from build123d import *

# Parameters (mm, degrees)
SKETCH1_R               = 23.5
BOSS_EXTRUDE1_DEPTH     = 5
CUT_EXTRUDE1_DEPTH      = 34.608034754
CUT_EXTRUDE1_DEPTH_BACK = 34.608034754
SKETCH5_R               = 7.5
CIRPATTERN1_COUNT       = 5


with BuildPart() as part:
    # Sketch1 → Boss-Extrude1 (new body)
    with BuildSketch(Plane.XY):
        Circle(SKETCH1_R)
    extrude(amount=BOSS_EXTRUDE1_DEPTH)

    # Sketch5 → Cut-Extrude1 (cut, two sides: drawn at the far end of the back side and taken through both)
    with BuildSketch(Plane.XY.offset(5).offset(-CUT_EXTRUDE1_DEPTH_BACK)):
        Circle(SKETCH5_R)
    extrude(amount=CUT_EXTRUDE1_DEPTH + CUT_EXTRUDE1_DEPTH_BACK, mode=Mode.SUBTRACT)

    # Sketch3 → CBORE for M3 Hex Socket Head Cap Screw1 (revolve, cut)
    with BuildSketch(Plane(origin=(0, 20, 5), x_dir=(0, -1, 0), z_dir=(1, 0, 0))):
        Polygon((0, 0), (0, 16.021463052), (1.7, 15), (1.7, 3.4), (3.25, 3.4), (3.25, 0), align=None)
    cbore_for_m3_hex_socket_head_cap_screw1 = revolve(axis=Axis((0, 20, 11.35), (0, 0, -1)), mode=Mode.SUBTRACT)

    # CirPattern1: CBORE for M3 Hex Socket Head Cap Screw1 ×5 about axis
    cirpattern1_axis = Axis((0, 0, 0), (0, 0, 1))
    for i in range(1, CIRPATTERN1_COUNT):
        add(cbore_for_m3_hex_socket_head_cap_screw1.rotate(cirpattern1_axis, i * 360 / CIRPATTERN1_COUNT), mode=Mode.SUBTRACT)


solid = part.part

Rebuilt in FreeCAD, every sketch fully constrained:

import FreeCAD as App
import Part
import Sketcher
Q = App.Units.Quantity


def add_polygon(sketch, points):
    """Adds a closed chain of lines whose ends are joined by coincident constraints."""
    first, n = sketch.GeometryCount, len(points)
    for a, b in zip(points, points[1:] + points[:1]):
        sketch.addGeometry(Part.LineSegment(App.Vector(*a, 0), App.Vector(*b, 0)), False)
    for i in range(n):
        sketch.addConstraint(Sketcher.Constraint("Coincident", first + i, 2, first + (i + 1) % n, 1))

doc = App.newDocument("Part")
params = doc.addObject("Spreadsheet::Sheet", "Params")
for row, (alias, value) in enumerate([
    ("sketch1_diameter", "47 mm"),
    ("pad1_length", "5 mm"),
    ("sketch2_diameter", "15 mm"),
    ("sketch3_height", "3.4 mm"),
    ("sketch3_height2", "11.6 mm"),
    ("sketch3_width", "3.25 mm"),
    ("sketch3_width2", "1.55 mm"),
    ("groove_angle", "360 deg"),
], start=1):
    params.set(f"A{row}", alias)
    params.set(f"B{row}", "=" + value)
    params.setAlias(f"B{row}", alias)

body = doc.addObject("PartDesign::Body", "Body")

# Sketch on XY plane
sketch1 = body.newObject("Sketcher::SketchObject", "Sketch")
sketch1.AttachmentSupport = (doc.getObject("XY_Plane"), [""])
sketch1.MapMode = "FlatFace"
sketch1.addGeometry(Part.Circle(App.Vector(0, 0, 0), App.Vector(0, 0, 1), 24), False)
sketch1.addConstraint([
    Sketcher.Constraint("Coincident", 0, 3, -1, 1),
    Sketcher.Constraint("Diameter", 0, Q("47 mm")),
])
sketch1.setExpression("Constraints[1]", "Params.sketch1_diameter")
pad1 = body.newObject("PartDesign::Pad", "Pad")
pad1.Profile = sketch1
pad1.setExpression("Length", "Params.pad1_length")

# Sketch on XY plane
sketch2 = body.newObject("Sketcher::SketchObject", "Sketch001")
sketch2.AttachmentSupport = (doc.getObject("XY_Plane"), [""])
sketch2.MapMode = "FlatFace"
sketch2.AttachmentOffset = App.Placement(App.Vector(0, 0, 5), App.Rotation())
sketch2.addGeometry(Part.Circle(App.Vector(0, 0, 0), App.Vector(0, 0, 1), 8), False)
sketch2.addConstraint([
    Sketcher.Constraint("Coincident", 0, 3, -1, 1),
    Sketcher.Constraint("Diameter", 0, Q("15 mm")),
])
sketch2.setExpression("Constraints[1]", "Params.sketch2_diameter")
pocket1 = body.newObject("PartDesign::Pocket", "Pocket")
pocket1.Profile = sketch2
pocket1.Type = "ThroughAll"
pocket1.Midplane = True

# Sketch on YZ plane
sketch3 = body.newObject("Sketcher::SketchObject", "Sketch002")
sketch3.AttachmentSupport = (doc.getObject("YZ_Plane"), [""])
sketch3.MapMode = "FlatFace"
add_polygon(sketch3, [(20, -11), (20, 5), (16.8, 5), (16.8, 1.6), (18.3, 1.6), (18.3, -10)])  # lines 0-5
sketch3.addGeometry(Part.LineSegment(App.Vector(20, 5, 0), App.Vector(20, -11, 0)), True)  # axis
sketch3.addConstraint([
    Sketcher.Constraint("Vertical", 0),
    Sketcher.Constraint("Horizontal", 1),
    Sketcher.Constraint("Vertical", 2),
    Sketcher.Constraint("Horizontal", 3),
    Sketcher.Constraint("Vertical", 4),
    Sketcher.Constraint("Vertical", 6),
    Sketcher.Constraint("Coincident", 6, 1, 0, 2),
    Sketcher.Constraint("Equal", 0, 6),
    Sketcher.Constraint("Angle", 5, Q("-31 deg")),
    Sketcher.Constraint("DistanceY", 2, 2, 2, 1, Q("3.4 mm")),
    Sketcher.Constraint("DistanceY", 4, 2, 4, 1, Q("11.6 mm")),
    Sketcher.Constraint("DistanceX", -1, 1, 0, 2, Q("20 mm")),
    Sketcher.Constraint("DistanceY", -1, 1, 0, 2, Q("5 mm")),
    Sketcher.Constraint("DistanceX", 1, 2, 1, 1, Q("3.25 mm")),
    Sketcher.Constraint("DistanceX", 3, 1, 3, 2, Q("1.55 mm")),
])
sketch3.setExpression("Constraints[15]", "Params.sketch3_height")
sketch3.setExpression("Constraints[16]", "Params.sketch3_height2")
sketch3.setExpression("Constraints[19]", "Params.sketch3_width")
sketch3.setExpression("Constraints[20]", "Params.sketch3_width2")
groove = body.newObject("PartDesign::Groove", "Groove")
groove.Profile = sketch3
groove.ReferenceAxis = (sketch3, ["Axis0"])
groove.setExpression("Angle", "Params.groove_angle")
doc.recompute()

polarpattern = body.newObject("PartDesign::PolarPattern", "PolarPattern")
polarpattern.Originals = [groove]
polarpattern.Axis = (doc.getObject("Z_Axis"), [""])
polarpattern.Angle = 360
polarpattern.Occurrences = 5
body.Tip = polarpattern

doc.recompute()
